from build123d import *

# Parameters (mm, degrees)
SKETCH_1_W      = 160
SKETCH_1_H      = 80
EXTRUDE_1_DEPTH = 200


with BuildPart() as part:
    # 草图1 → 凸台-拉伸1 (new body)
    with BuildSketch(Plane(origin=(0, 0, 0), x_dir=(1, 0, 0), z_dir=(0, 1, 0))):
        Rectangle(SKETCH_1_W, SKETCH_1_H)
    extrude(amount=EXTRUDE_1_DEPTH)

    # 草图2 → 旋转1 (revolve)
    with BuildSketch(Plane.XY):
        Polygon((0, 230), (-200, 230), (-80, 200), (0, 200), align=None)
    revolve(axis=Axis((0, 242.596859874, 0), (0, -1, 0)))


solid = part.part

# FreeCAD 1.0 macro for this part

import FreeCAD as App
import Part
import Sketcher

doc = App.newDocument("Part")
params = doc.addObject("Spreadsheet::Sheet", "Params")
for row, (alias, value) in enumerate([
    ("sketch1_width", "160 mm"),
    ("sketch1_height", "80 mm"),
    ("pad1_length", "200 mm"),
    ("sketch2_width", "200 mm"),
    ("sketch2_width2", "80 mm"),
    ("sketch2_height", "30 mm"),
    ("revolution_angle", "360 deg"),
], start=1):
    params.set(f"A{row}", alias)
    params.set(f"B{row}", "=" + value)
    params.setAlias(f"B{row}", alias)

body = doc.addObject("PartDesign::Body", "Body")

# Sketch on XZ plane
sketch1 = doc.addObject("Sketcher::SketchObject", "Sketch")
body.addObject(sketch1)
sketch1.AttachmentSupport = (doc.XZ_Plane, [""])
sketch1.MapMode = "FlatFace"
sketch1.addGeometry([
    Part.LineSegment(App.Vector(-80, -40, 0), App.Vector(-80, 40, 0)),
    Part.LineSegment(App.Vector(-80, 40, 0), App.Vector(80, 40, 0)),
    Part.LineSegment(App.Vector(80, 40, 0), App.Vector(80, -40, 0)),
    Part.LineSegment(App.Vector(80, -40, 0), App.Vector(-80, -40, 0)),
], False)
sketch1.addConstraint([
    Sketcher.Constraint("Coincident", 0, 2, 1, 1),
    Sketcher.Constraint("Coincident", 1, 2, 2, 1),
    Sketcher.Constraint("Coincident", 2, 2, 3, 1),
    Sketcher.Constraint("Coincident", 3, 2, 0, 1),
    Sketcher.Constraint("Vertical", 0),
    Sketcher.Constraint("Horizontal", 1),
    Sketcher.Constraint("Vertical", 2),
    Sketcher.Constraint("Horizontal", 3),
    Sketcher.Constraint("Symmetric", 0, 2, 2, 2, -1, 1),
    Sketcher.Constraint("DistanceX", 1, 1, 1, 2, 160.0),
    Sketcher.Constraint("DistanceY", 0, 1, 0, 2, 80.0),
])
sketch1.setExpression("Constraints[9]", "Params.sketch1_width")
sketch1.setExpression("Constraints[10]", "Params.sketch1_height")
pad1 = doc.addObject("PartDesign::Pad", "Pad")
body.addObject(pad1)
pad1.Profile = sketch1
pad1.setExpression("Length", "Params.pad1_length")
pad1.Reversed = True

# Sketch on XY plane
sketch2 = doc.addObject("Sketcher::SketchObject", "Sketch001")
body.addObject(sketch2)
sketch2.AttachmentSupport = (doc.XY_Plane, [""])
sketch2.MapMode = "FlatFace"
sketch2.addGeometry([
    Part.LineSegment(App.Vector(0, 230, 0), App.Vector(-200, 230, 0)),
    Part.LineSegment(App.Vector(-200, 230, 0), App.Vector(-80, 200, 0)),
    Part.LineSegment(App.Vector(-80, 200, 0), App.Vector(0, 200, 0)),
    Part.LineSegment(App.Vector(0, 200, 0), App.Vector(0, 230, 0)),
], False)
sketch2.addConstraint([
    Sketcher.Constraint("Coincident", 0, 2, 1, 1),
    Sketcher.Constraint("Coincident", 1, 2, 2, 1),
    Sketcher.Constraint("Coincident", 2, 2, 3, 1),
    Sketcher.Constraint("Coincident", 3, 2, 0, 1),
    Sketcher.Constraint("Horizontal", 0),
    Sketcher.Constraint("Horizontal", 2),
    Sketcher.Constraint("Vertical", 3),
    Sketcher.Constraint("PointOnObject", 2, 2, -2),
    Sketcher.Constraint("DistanceX", 0, 2, 0, 1, 200.0),
    Sketcher.Constraint("DistanceX", 2, 1, 2, 2, 80.0),
    Sketcher.Constraint("DistanceY", 3, 1, 3, 2, 30.0),
    Sketcher.Constraint("DistanceY", -1, 1, 0, 2, 230.0),
])
sketch2.setExpression("Constraints[8]", "Params.sketch2_width")
sketch2.setExpression("Constraints[9]", "Params.sketch2_width2")
sketch2.setExpression("Constraints[10]", "Params.sketch2_height")
revolution = doc.addObject("PartDesign::Revolution", "Revolution")
body.addObject(revolution)
revolution.Profile = sketch2
revolution.ReferenceAxis = (sketch2, ["V_Axis"])
revolution.setExpression("Angle", "Params.revolution_angle")

doc.recompute()
